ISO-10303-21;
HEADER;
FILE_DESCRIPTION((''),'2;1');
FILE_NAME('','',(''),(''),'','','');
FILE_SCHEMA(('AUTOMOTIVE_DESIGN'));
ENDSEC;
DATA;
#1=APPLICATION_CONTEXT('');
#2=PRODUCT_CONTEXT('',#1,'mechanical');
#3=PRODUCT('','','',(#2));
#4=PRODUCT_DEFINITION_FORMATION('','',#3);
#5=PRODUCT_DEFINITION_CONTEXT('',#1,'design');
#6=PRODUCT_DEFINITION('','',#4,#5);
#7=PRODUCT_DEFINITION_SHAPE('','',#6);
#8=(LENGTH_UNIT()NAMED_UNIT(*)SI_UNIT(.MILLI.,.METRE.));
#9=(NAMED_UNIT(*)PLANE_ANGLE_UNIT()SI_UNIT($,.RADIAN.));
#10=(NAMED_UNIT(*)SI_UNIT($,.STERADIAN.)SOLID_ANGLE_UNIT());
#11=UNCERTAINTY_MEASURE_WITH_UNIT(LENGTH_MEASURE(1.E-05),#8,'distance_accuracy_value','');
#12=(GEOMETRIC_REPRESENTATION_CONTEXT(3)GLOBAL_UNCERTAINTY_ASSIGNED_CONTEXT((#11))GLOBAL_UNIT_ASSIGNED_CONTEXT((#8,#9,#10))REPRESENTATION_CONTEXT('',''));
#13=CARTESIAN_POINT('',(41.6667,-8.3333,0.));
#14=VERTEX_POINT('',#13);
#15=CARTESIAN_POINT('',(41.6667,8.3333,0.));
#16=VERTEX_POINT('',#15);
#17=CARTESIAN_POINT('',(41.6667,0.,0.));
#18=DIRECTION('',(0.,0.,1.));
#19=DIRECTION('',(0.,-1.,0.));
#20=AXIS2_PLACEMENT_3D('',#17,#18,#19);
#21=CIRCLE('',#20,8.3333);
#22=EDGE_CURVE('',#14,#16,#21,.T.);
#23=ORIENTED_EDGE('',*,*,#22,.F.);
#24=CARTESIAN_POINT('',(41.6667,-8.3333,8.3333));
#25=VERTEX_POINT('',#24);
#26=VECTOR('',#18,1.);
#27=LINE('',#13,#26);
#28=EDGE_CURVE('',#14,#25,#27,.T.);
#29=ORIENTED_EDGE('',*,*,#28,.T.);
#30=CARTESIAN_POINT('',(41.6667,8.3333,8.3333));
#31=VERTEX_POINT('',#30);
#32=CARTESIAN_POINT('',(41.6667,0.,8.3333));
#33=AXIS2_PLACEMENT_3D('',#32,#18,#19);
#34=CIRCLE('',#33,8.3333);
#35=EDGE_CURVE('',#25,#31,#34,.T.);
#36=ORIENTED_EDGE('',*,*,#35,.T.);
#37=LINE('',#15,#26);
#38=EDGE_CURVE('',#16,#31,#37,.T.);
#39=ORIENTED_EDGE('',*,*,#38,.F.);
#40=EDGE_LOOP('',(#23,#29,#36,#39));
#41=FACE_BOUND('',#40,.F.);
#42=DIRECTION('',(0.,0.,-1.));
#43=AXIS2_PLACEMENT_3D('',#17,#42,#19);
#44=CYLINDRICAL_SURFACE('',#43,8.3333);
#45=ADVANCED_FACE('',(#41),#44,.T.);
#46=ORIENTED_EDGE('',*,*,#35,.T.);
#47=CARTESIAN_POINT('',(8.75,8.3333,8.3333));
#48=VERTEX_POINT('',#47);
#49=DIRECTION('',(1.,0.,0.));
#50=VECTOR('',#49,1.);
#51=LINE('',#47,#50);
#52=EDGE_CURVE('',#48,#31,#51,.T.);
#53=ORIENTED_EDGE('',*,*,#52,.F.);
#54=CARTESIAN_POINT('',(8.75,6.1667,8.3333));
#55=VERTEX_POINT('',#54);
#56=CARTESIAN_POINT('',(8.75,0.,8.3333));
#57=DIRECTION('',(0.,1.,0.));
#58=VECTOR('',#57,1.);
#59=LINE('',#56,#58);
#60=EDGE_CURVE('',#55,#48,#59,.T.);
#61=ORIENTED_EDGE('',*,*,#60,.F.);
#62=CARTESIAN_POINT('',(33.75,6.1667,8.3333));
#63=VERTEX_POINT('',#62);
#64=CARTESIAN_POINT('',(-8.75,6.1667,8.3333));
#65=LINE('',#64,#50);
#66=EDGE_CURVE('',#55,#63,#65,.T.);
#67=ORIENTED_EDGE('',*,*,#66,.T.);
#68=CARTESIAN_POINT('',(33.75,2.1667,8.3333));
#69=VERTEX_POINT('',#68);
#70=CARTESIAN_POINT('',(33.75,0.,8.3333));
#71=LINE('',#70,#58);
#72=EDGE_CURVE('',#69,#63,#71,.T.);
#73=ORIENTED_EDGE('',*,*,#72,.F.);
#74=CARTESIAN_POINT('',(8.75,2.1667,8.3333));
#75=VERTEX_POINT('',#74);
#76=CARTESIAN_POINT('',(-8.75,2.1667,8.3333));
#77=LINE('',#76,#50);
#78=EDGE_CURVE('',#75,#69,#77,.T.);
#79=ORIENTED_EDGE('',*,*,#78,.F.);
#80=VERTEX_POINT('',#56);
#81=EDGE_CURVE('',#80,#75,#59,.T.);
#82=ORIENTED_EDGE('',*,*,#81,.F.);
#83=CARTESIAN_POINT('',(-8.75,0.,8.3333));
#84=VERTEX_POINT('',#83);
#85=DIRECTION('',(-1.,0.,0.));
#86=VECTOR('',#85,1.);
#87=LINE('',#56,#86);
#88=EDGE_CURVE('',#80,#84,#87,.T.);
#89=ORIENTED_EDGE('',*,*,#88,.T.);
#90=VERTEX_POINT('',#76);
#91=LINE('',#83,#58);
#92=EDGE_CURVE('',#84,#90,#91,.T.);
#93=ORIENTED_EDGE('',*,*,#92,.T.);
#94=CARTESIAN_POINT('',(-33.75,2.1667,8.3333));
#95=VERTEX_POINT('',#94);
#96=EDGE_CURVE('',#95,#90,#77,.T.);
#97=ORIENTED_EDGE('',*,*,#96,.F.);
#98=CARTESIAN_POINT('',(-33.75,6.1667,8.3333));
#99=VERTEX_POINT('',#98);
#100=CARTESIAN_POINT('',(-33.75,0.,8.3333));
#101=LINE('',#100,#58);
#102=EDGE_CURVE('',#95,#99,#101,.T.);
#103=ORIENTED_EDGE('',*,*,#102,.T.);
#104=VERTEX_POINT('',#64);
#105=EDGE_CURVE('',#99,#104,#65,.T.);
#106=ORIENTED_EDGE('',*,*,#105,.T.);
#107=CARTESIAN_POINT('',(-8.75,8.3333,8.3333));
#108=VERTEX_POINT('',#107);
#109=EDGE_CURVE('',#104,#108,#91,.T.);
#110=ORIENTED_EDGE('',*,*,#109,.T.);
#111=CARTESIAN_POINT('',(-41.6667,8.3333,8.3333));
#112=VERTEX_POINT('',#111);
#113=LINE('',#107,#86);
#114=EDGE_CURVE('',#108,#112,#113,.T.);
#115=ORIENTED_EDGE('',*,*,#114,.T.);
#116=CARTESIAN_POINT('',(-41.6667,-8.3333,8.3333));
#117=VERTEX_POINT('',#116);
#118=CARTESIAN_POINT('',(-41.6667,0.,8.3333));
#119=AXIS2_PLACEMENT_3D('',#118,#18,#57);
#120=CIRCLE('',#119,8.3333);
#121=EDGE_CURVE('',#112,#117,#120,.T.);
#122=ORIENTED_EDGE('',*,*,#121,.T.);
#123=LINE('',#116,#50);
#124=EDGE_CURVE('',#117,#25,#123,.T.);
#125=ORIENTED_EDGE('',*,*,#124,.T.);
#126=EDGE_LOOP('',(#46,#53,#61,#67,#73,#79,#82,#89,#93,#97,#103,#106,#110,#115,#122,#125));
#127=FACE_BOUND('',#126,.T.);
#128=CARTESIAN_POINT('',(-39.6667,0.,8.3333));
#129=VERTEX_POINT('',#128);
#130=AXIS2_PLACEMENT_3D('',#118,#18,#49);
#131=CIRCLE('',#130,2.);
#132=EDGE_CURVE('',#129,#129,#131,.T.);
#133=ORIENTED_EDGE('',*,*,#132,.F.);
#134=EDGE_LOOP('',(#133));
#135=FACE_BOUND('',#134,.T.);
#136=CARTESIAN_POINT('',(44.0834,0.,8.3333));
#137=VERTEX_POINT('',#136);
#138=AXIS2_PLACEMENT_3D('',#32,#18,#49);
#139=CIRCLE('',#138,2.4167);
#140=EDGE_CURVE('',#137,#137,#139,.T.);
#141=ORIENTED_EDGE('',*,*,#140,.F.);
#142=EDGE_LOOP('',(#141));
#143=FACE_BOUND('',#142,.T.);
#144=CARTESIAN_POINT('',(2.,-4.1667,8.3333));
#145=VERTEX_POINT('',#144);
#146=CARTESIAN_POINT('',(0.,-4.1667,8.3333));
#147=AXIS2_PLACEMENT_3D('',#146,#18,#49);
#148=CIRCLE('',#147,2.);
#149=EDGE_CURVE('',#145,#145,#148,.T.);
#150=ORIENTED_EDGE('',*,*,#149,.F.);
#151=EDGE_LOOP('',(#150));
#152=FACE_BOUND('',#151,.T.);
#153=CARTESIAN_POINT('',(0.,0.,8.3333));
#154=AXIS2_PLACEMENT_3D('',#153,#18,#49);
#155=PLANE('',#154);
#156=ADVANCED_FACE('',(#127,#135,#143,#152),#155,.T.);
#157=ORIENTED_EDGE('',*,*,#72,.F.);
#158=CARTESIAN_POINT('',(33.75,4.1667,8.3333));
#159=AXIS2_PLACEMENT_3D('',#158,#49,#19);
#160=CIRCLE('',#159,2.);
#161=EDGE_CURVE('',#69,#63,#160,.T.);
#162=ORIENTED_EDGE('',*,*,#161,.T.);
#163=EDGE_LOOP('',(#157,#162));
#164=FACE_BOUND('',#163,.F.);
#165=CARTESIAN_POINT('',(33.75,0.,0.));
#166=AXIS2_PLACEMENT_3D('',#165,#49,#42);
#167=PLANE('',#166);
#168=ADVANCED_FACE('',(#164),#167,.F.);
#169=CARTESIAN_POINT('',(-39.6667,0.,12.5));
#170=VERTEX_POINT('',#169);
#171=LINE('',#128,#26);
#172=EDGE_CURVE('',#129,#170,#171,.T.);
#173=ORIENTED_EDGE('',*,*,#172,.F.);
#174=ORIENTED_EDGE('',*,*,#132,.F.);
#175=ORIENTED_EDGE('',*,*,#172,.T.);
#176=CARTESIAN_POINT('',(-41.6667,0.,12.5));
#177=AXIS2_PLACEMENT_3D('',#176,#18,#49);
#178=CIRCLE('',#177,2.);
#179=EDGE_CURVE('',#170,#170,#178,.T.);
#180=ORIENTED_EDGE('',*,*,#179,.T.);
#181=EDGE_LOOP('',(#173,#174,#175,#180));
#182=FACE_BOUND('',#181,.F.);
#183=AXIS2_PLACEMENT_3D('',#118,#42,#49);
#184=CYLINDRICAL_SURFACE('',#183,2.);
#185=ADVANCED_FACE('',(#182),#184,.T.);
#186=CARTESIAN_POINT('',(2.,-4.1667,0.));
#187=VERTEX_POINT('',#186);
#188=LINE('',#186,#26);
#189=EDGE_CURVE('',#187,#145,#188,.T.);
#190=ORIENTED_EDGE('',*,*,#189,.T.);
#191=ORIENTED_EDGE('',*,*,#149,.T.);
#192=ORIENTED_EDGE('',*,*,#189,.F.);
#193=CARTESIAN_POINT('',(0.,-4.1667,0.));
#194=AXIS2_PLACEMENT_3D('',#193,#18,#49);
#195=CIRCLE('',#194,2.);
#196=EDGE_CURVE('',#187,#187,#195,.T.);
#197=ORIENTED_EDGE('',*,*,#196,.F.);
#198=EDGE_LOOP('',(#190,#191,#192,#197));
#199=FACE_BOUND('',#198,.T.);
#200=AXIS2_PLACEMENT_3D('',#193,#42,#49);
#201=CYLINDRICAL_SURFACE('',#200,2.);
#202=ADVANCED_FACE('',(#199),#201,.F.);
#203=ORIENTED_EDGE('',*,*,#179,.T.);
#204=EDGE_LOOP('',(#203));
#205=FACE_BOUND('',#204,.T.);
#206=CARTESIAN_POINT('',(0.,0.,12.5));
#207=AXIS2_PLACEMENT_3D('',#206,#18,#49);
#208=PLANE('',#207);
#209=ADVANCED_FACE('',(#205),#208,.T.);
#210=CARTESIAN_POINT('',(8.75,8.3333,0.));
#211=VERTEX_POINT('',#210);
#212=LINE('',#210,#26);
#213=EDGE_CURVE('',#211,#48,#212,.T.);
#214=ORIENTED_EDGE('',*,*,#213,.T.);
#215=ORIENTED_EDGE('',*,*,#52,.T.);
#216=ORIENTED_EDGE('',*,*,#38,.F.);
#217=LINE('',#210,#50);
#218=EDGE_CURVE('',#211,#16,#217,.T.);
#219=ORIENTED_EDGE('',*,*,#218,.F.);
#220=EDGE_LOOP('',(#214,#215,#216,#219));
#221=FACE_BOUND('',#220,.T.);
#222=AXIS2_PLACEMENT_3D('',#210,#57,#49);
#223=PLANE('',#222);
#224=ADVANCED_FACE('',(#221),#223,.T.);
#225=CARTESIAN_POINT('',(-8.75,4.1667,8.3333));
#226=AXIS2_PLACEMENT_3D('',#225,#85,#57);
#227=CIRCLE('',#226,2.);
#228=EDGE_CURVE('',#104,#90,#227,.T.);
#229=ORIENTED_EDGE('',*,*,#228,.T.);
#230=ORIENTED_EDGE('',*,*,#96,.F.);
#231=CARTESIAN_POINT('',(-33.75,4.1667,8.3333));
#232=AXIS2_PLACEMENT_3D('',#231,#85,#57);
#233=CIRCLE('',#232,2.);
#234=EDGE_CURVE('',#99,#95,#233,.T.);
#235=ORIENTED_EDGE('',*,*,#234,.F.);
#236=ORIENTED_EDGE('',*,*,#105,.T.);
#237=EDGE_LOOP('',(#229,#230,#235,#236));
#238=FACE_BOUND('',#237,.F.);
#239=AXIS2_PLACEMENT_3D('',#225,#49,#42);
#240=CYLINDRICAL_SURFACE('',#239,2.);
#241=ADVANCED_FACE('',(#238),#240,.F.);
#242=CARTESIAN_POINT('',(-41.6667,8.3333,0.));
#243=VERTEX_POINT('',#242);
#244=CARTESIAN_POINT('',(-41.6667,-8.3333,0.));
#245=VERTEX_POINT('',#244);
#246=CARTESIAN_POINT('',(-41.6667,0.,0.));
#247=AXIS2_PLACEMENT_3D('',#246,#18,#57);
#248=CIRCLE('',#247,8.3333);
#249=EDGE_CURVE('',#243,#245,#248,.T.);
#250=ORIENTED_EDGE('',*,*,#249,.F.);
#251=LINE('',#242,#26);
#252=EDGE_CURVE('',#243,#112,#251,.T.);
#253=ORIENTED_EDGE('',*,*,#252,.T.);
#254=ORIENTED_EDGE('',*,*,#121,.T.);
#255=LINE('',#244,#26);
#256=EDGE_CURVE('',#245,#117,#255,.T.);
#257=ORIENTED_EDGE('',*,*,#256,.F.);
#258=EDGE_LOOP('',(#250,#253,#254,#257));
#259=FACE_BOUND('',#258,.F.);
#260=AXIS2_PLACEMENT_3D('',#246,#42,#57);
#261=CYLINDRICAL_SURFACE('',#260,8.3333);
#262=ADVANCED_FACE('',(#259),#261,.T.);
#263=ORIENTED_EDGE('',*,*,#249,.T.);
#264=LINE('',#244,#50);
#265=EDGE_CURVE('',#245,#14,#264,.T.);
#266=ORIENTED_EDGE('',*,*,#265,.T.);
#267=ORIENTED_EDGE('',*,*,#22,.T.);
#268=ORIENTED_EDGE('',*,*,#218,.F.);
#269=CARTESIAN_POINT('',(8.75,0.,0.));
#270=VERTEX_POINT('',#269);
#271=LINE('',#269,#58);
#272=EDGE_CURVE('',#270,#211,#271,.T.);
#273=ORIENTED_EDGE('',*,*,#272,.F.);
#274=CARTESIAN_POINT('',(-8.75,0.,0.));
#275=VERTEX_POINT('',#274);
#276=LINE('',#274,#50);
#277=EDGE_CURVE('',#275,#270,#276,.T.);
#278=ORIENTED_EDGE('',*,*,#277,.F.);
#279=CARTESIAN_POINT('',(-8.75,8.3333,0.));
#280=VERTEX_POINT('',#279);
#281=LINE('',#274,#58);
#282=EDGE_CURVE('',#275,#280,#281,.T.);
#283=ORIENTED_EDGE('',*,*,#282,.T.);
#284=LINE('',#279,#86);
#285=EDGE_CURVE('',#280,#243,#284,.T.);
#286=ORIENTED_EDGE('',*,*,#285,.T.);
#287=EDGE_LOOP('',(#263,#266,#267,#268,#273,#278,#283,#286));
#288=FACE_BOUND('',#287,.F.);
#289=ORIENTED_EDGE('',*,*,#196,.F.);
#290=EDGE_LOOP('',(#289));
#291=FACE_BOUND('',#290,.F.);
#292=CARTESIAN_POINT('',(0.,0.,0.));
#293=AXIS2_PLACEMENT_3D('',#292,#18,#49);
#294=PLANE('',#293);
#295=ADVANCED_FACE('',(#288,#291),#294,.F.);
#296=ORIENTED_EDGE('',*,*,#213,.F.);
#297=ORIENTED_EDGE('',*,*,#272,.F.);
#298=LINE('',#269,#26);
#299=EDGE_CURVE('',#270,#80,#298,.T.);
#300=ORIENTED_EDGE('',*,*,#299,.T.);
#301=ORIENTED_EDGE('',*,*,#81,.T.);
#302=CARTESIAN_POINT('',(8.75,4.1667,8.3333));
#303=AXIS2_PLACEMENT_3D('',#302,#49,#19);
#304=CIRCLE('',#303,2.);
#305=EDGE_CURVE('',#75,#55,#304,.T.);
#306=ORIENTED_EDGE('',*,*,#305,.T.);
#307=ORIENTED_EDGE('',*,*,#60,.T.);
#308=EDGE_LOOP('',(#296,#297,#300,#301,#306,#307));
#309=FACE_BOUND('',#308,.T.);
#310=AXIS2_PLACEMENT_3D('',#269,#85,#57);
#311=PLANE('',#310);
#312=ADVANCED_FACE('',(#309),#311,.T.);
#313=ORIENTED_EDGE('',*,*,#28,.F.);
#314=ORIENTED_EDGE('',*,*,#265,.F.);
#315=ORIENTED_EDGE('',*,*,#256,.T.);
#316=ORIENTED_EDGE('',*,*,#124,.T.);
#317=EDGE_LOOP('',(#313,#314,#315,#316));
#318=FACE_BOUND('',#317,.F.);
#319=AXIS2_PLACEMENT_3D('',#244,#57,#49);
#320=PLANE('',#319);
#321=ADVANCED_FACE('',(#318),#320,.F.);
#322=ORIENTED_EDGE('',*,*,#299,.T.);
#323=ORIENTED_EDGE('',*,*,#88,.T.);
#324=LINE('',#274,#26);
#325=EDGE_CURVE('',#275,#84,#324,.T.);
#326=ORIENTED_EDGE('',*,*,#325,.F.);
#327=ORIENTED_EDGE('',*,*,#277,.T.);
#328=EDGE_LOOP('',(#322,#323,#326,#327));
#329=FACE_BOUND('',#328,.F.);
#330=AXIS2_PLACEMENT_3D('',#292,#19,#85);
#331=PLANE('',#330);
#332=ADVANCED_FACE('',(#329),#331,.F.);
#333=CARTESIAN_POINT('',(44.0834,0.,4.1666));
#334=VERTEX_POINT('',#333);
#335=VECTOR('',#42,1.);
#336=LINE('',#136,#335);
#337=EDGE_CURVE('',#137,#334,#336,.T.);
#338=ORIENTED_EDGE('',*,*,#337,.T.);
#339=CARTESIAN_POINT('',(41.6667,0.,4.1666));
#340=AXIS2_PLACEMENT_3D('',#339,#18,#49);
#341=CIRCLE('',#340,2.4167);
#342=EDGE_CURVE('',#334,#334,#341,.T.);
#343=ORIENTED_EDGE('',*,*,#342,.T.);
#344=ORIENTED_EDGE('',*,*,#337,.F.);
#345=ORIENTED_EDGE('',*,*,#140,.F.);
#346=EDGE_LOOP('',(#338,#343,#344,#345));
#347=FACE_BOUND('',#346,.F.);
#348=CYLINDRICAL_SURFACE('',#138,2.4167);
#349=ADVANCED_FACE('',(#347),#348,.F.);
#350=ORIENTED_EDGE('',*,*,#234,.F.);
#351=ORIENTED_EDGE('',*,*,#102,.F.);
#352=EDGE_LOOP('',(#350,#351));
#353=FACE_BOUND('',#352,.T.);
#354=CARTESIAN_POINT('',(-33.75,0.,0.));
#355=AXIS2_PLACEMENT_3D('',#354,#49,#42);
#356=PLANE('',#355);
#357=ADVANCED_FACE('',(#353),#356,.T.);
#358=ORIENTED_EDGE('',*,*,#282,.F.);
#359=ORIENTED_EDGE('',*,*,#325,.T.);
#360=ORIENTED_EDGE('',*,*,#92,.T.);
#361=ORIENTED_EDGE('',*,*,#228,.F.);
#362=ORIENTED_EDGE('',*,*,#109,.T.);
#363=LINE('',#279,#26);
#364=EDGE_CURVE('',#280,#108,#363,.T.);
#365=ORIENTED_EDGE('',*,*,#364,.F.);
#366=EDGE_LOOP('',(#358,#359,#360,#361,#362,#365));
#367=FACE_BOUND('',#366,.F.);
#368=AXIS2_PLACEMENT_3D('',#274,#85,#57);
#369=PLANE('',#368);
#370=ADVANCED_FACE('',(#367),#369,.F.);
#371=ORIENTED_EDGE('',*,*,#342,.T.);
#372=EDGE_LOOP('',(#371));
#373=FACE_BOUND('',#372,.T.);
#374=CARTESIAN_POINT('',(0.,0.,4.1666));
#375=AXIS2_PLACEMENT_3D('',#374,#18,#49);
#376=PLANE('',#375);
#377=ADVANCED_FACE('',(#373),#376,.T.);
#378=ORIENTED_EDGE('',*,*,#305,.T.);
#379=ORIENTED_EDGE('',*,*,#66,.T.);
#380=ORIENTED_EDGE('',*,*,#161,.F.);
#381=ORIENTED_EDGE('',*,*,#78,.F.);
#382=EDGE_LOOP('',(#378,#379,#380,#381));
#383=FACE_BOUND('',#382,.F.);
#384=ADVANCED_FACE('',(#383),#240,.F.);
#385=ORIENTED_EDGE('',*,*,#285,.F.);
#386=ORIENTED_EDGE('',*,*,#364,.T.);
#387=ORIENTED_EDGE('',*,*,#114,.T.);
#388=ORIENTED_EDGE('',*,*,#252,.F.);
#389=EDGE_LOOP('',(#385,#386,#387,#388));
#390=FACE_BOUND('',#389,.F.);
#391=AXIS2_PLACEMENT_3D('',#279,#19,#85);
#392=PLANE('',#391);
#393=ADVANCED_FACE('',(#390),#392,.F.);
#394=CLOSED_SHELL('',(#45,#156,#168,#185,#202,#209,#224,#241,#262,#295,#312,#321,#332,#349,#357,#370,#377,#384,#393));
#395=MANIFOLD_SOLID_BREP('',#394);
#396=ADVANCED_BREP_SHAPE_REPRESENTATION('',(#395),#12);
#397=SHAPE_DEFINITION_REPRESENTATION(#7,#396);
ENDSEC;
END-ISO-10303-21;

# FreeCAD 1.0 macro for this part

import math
import FreeCAD as App
import Part
import Sketcher
Q = App.Units.Quantity

doc = App.newDocument("Part")
params = doc.addObject("Spreadsheet::Sheet", "Params")
for row, (alias, value) in enumerate([
    ("sketch1_diameter", "4 mm"),
    ("pad1_length", "8.3333 mm"),
    ("sketch2_diameter", "4 mm"),
    ("pocket1_length", "42.5 mm"),
    ("pocket1_length2", "25 mm"),
    ("sketch3_diameter", "4 mm"),
    ("pad2_length", "4.1667 mm"),
    ("pocket2_length", "4.1667 mm"),
], start=1):
    params.set(f"A{row}", alias)
    params.set(f"B{row}", "=" + value)
    params.setAlias(f"B{row}", alias)

body = doc.addObject("PartDesign::Body", "Body")

sketch1 = doc.addObject("Sketcher::SketchObject", "Sketch")
body.addObject(sketch1)
sketch1.AttachmentSupport = (doc.XY_Plane, [""])
sketch1.MapMode = "FlatFace"
sketch1.addGeometry(Part.ArcOfCircle(Part.Circle(App.Vector(-41.7, 0, 0), App.Vector(0, 0, 1), 8.3), math.radians(90), math.radians(270)), False)
sketch1.addGeometry(Part.LineSegment(App.Vector(-41.7, -8.3, 0), App.Vector(41.7, -8.3, 0)), False)
sketch1.addGeometry(Part.ArcOfCircle(Part.Circle(App.Vector(41.7, 0, 0), App.Vector(0, 0, 1), 8.3), math.radians(-90), math.radians(90)), False)
sketch1.addGeometry(Part.LineSegment(App.Vector(41.7, 8.3, 0), App.Vector(8.8, 8.3, 0)), False)
sketch1.addGeometry(Part.LineSegment(App.Vector(8.8, 8.3, 0), App.Vector(8.8, 0, 0)), False)
sketch1.addGeometry(Part.LineSegment(App.Vector(8.8, 0, 0), App.Vector(-8.8, 0, 0)), False)
sketch1.addGeometry(Part.LineSegment(App.Vector(-8.8, 0, 0), App.Vector(-8.8, 8.3, 0)), False)
sketch1.addGeometry(Part.LineSegment(App.Vector(-8.8, 8.3, 0), App.Vector(-41.7, 8.3, 0)), False)
sketch1.addGeometry(Part.Circle(App.Vector(0, -4.2, 0), App.Vector(0, 0, 1), 2), False)
sketch1.addConstraint(Sketcher.Constraint("Tangent", 0, 2, 1, 1))
sketch1.addConstraint(Sketcher.Constraint("Tangent", 1, 2, 2, 1))
sketch1.addConstraint(Sketcher.Constraint("Tangent", 2, 2, 3, 1))
sketch1.addConstraint(Sketcher.Constraint("Coincident", 3, 2, 4, 1))
sketch1.addConstraint(Sketcher.Constraint("Coincident", 4, 2, 5, 1))
sketch1.addConstraint(Sketcher.Constraint("Coincident", 5, 2, 6, 1))
sketch1.addConstraint(Sketcher.Constraint("Coincident", 6, 2, 7, 1))
sketch1.addConstraint(Sketcher.Constraint("Tangent", 7, 2, 0, 1))
sketch1.addConstraint(Sketcher.Constraint("Horizontal", 1))
sketch1.addConstraint(Sketcher.Constraint("Horizontal", 3))
sketch1.addConstraint(Sketcher.Constraint("Vertical", 4))
sketch1.addConstraint(Sketcher.Constraint("Horizontal", 5))
sketch1.addConstraint(Sketcher.Constraint("Vertical", 6))
sketch1.addConstraint(Sketcher.Constraint("Horizontal", 7))
sketch1.addConstraint(Sketcher.Constraint("Equal", 0, 2))
sketch1.addConstraint(Sketcher.Constraint("Symmetric", 0, 3, 2, 3, -1, 1))
sketch1.addConstraint(Sketcher.Constraint("Symmetric", 4, 2, 5, 2, -1, 1))
sketch1.addConstraint(Sketcher.Constraint("PointOnObject", 8, 3, -2))
sketch1.addConstraint(Sketcher.Constraint("Diameter", 8, Q("4 mm")))
sketch1.addConstraint(Sketcher.Constraint("Radius", 0, Q("8.3333 mm")))
sketch1.addConstraint(Sketcher.Constraint("DistanceX", -1, 1, 3, 2, Q("8.75 mm")))
sketch1.addConstraint(Sketcher.Constraint("DistanceX", 0, 3, -1, 1, Q("41.6667 mm")))
sketch1.addConstraint(Sketcher.Constraint("DistanceY", 8, 3, -1, 1, Q("4.1667 mm")))
sketch1.setExpression("Constraints[18]", "Params.sketch1_diameter")
pad1 = doc.addObject("PartDesign::Pad", "Pad")
body.addObject(pad1)
pad1.Profile = sketch1
pad1.setExpression("Length", "Params.pad1_length")

sketch2 = doc.addObject("Sketcher::SketchObject", "Sketch001")
body.addObject(sketch2)
sketch2.AttachmentSupport = (doc.YZ_Plane, [""])
sketch2.MapMode = "FlatFace"
sketch2.AttachmentOffset = App.Placement(App.Vector(0, 0, -8.75), App.Rotation())
sketch2.addGeometry(Part.Circle(App.Vector(4.2, 8.3, 0), App.Vector(0, 0, 1), 2), False)
sketch2.addConstraint(Sketcher.Constraint("Diameter", 0, Q("4 mm")))
sketch2.addConstraint(Sketcher.Constraint("DistanceX", -1, 1, 0, 3, Q("4.1667 mm")))
sketch2.addConstraint(Sketcher.Constraint("DistanceY", -1, 1, 0, 3, Q("8.3333 mm")))
sketch2.setExpression("Constraints[0]", "Params.sketch2_diameter")
pocket1 = doc.addObject("PartDesign::Pocket", "Pocket")
body.addObject(pocket1)
pocket1.Profile = sketch2
pocket1.Type = "TwoLengths"
pocket1.setExpression("Length", "Params.pocket1_length")
pocket1.setExpression("Length2", "Params.pocket1_length2")
pocket1.Reversed = True

sketch3 = doc.addObject("Sketcher::SketchObject", "Sketch002")
body.addObject(sketch3)
sketch3.AttachmentSupport = (doc.XY_Plane, [""])
sketch3.MapMode = "FlatFace"
sketch3.AttachmentOffset = App.Placement(App.Vector(0, 0, 8.3333), App.Rotation())
sketch3.addGeometry(Part.Circle(App.Vector(-41.7, 0, 0), App.Vector(0, 0, 1), 2), False)
sketch3.addConstraint(Sketcher.Constraint("PointOnObject", 0, 3, -1))
sketch3.addConstraint(Sketcher.Constraint("Diameter", 0, Q("4 mm")))
sketch3.addConstraint(Sketcher.Constraint("DistanceX", 0, 3, -1, 1, Q("41.6667 mm")))
sketch3.setExpression("Constraints[1]", "Params.sketch3_diameter")
pad2 = doc.addObject("PartDesign::Pad", "Pad001")
body.addObject(pad2)
pad2.Profile = sketch3
pad2.setExpression("Length", "Params.pad2_length")

sketch4 = doc.addObject("Sketcher::SketchObject", "Sketch003")
body.addObject(sketch4)
sketch4.AttachmentSupport = (doc.XY_Plane, [""])
sketch4.MapMode = "FlatFace"
sketch4.AttachmentOffset = App.Placement(App.Vector(0, 0, 8.3333), App.Rotation())
sketch4.addGeometry(Part.Circle(App.Vector(41.7, 0, 0), App.Vector(0, 0, 1), 2.4), False)
sketch4.addConstraint(Sketcher.Constraint("PointOnObject", 0, 3, -1))
sketch4.addConstraint(Sketcher.Constraint("Diameter", 0, Q("4.8334 mm")))
sketch4.addConstraint(Sketcher.Constraint("DistanceX", -1, 1, 0, 3, Q("41.6667 mm")))
pocket2 = doc.addObject("PartDesign::Pocket", "Pocket001")
body.addObject(pocket2)
pocket2.Profile = sketch4
pocket2.setExpression("Length", "Params.pocket2_length")

doc.recompute()
